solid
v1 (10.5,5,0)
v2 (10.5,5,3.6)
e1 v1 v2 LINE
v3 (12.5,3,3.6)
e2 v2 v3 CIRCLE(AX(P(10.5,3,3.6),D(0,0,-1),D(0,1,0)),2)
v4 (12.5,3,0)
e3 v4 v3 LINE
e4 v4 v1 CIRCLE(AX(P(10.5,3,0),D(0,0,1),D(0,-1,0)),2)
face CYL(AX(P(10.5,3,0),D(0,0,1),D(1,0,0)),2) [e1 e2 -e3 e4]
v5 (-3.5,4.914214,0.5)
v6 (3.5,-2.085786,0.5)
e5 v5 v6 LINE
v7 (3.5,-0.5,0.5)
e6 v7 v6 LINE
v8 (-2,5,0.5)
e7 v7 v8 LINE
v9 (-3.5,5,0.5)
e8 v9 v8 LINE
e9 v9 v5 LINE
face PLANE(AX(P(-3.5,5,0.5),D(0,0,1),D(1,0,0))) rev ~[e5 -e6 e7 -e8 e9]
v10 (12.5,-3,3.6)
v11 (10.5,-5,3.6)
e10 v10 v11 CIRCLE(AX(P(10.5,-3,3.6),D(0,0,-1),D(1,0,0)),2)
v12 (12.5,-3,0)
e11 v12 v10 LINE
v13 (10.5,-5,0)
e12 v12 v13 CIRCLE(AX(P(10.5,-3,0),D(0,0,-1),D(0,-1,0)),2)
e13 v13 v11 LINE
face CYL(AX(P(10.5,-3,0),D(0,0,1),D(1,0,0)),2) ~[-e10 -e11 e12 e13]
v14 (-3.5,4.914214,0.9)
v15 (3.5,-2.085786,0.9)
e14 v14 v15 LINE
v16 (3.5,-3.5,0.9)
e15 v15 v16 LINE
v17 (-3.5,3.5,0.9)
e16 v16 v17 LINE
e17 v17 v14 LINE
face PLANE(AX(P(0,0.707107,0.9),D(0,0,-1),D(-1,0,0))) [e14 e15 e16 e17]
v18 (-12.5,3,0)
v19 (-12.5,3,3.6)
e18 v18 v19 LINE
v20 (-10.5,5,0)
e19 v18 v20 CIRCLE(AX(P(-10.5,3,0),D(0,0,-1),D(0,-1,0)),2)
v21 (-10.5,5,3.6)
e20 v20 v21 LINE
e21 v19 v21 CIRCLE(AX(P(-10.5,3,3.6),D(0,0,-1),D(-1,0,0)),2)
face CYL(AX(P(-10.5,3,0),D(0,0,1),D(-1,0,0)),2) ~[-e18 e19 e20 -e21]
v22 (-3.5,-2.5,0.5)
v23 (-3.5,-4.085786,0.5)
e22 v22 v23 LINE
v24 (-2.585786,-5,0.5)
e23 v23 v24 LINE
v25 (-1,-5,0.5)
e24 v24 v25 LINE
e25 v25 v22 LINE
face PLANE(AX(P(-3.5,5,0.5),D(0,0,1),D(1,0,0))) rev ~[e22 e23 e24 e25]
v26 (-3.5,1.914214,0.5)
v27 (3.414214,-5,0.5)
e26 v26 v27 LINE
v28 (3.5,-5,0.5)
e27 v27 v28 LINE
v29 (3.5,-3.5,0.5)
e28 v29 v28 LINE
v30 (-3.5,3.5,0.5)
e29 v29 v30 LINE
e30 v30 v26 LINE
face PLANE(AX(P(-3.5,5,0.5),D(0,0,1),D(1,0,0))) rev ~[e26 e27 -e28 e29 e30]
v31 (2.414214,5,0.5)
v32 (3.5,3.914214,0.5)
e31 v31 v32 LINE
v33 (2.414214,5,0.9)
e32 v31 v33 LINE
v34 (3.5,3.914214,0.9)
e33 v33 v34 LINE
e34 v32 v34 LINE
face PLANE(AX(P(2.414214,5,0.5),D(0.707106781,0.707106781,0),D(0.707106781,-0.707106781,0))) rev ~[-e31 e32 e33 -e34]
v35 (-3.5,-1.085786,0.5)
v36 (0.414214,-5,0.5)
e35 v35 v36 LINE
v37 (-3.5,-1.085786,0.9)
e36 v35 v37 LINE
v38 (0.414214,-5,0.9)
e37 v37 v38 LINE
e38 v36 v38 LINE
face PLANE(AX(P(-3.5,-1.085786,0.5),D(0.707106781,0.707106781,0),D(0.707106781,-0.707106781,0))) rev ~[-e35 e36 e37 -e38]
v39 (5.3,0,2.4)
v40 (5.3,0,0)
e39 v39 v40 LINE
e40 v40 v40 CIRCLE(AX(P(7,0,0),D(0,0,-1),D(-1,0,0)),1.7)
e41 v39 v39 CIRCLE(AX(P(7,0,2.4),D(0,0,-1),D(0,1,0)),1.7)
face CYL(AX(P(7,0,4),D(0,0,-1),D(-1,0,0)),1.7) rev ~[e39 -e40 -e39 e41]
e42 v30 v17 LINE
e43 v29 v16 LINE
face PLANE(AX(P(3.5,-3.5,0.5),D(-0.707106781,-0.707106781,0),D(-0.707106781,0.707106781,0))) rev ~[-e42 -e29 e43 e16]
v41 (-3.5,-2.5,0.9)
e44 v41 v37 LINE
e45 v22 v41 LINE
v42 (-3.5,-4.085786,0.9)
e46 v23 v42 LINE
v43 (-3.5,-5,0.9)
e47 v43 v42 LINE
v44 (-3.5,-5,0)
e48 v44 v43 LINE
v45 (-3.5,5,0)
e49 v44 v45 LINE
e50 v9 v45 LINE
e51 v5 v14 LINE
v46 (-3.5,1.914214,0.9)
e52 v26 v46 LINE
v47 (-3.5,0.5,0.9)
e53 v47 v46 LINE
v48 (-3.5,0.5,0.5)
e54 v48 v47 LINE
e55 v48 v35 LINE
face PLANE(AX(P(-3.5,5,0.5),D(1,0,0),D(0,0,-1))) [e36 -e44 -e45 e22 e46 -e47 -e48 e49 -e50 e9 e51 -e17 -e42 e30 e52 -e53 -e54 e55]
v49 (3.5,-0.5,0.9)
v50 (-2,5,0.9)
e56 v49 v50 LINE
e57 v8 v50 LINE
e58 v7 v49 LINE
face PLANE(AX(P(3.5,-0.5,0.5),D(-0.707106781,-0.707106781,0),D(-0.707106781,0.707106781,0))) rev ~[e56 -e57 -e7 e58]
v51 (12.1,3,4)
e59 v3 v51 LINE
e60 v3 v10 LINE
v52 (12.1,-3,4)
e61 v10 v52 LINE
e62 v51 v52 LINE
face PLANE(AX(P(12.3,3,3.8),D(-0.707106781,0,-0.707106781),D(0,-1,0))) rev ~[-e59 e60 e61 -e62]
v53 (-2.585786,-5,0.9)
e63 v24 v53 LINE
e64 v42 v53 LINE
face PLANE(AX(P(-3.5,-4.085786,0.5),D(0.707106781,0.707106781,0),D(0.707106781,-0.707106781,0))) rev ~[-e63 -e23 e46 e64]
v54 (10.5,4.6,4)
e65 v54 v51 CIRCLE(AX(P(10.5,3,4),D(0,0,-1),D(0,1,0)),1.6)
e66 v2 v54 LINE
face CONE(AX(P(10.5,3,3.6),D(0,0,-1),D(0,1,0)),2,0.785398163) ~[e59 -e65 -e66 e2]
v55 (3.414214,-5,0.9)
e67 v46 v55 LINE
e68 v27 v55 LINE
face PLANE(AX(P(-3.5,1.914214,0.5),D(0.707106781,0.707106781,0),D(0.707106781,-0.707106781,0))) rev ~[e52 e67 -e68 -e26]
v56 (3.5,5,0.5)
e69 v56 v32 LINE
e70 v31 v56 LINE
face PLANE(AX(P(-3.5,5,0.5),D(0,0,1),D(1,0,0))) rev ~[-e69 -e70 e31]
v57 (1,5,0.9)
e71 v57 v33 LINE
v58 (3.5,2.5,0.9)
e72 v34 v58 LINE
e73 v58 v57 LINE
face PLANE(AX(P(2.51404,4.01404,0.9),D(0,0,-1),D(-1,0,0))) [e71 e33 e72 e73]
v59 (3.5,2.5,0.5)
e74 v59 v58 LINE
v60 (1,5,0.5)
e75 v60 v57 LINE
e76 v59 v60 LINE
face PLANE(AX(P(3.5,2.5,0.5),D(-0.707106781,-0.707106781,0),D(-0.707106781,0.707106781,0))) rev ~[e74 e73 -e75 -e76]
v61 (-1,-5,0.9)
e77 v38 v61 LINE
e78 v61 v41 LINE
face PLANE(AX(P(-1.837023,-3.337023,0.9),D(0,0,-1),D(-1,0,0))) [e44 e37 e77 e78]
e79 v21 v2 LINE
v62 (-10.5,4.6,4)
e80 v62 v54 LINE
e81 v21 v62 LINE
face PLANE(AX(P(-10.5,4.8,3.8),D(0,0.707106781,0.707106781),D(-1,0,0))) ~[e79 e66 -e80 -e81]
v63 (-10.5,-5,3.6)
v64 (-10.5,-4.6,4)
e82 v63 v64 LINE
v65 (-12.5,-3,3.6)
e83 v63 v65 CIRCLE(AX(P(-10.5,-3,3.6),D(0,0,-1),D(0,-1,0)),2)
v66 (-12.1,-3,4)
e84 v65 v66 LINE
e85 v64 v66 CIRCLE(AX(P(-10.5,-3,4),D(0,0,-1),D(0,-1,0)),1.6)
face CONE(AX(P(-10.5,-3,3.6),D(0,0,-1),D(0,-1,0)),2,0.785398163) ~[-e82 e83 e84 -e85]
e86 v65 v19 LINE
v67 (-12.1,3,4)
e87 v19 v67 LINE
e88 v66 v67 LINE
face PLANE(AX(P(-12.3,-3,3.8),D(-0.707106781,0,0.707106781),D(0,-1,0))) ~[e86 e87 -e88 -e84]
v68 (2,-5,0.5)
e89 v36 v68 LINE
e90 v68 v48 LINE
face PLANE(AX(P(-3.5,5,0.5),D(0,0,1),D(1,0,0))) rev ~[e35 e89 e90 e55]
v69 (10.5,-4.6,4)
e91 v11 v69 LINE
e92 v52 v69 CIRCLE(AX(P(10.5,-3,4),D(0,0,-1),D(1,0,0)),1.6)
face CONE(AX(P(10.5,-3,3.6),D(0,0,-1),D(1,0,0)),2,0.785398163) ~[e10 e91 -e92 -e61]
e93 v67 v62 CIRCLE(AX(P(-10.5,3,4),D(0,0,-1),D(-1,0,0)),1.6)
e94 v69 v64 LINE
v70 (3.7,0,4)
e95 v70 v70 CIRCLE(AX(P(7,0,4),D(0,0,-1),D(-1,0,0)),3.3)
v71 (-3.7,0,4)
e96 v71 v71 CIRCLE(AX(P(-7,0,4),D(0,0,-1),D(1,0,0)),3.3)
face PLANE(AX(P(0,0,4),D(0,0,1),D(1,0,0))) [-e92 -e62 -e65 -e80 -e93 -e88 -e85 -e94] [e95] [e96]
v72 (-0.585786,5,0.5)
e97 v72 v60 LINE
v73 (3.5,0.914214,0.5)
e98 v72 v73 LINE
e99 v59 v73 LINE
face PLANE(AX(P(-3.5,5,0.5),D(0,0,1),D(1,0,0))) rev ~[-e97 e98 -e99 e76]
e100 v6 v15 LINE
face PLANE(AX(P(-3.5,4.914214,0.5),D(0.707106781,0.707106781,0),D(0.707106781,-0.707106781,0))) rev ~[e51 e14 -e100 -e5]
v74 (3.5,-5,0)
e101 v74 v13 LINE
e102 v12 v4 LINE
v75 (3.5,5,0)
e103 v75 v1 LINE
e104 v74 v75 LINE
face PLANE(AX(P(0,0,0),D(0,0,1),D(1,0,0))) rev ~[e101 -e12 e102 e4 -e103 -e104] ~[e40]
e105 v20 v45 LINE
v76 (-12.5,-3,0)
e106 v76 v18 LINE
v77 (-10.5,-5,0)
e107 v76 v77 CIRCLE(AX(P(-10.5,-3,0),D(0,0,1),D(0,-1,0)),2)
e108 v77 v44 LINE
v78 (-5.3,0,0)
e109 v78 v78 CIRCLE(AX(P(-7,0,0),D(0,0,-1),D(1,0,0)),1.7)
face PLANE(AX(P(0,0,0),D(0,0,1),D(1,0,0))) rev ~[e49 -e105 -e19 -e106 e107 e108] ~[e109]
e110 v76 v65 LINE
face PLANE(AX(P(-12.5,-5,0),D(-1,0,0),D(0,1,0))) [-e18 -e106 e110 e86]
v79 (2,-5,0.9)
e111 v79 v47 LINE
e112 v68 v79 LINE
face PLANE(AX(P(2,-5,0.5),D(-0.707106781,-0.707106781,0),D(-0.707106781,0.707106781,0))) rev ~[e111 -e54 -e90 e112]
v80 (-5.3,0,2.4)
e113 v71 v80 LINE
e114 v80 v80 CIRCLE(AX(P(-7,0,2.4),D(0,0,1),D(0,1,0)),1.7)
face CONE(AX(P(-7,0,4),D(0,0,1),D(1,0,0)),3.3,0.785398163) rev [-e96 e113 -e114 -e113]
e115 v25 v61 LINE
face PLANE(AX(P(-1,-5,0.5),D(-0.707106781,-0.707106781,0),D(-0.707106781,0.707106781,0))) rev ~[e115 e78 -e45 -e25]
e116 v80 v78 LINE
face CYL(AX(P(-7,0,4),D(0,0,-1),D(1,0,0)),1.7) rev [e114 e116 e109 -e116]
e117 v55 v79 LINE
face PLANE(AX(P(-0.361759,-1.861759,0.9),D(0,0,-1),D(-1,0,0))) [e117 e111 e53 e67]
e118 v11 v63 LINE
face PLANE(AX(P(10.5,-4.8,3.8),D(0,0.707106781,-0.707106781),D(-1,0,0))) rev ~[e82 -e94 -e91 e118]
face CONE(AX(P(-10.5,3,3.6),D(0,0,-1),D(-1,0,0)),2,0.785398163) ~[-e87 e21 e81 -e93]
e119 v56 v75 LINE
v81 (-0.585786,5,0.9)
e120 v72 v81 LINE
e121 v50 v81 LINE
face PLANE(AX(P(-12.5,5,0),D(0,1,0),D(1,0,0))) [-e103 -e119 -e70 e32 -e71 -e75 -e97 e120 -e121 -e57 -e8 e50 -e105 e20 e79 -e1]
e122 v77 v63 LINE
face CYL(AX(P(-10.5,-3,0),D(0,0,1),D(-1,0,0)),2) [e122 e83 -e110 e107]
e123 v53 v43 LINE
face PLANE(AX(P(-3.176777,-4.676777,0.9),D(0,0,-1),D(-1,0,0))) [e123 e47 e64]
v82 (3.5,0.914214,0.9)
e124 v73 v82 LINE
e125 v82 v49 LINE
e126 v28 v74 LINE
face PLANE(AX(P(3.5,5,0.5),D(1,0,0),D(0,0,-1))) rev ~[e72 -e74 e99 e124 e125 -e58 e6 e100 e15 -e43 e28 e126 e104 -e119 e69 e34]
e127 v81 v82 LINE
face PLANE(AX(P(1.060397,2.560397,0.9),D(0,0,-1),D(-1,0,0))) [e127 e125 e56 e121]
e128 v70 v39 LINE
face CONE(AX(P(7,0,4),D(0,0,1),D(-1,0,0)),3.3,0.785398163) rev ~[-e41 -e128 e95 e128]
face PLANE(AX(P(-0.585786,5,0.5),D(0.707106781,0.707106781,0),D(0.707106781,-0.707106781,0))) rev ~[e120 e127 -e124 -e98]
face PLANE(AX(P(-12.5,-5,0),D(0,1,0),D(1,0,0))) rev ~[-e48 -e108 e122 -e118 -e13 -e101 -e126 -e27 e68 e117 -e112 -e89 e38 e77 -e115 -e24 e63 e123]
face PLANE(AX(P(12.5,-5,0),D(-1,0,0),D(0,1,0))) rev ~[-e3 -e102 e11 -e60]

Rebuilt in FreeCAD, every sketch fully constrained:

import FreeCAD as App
import Part
import Sketcher

V = App.Vector


def edges_at(feature, points):
    """Names of the edges that pass closest to the given points."""
    edges = feature.Shape.Edges
    near = lambda p: min(range(len(edges)), key=lambda i: edges[i].distToShape(Part.Vertex(*p))[0])
    return sorted({f"Edge{near(p) + 1}" for p in points})

doc = App.newDocument("Part")
body = doc.addObject("PartDesign::Body", "Body")

# Sketch on XY plane
sketch1 = body.newObject("Sketcher::SketchObject", "Sketch")
sketch1.AttachmentSupport = (doc.getObject("XY_Plane"), [""])
sketch1.MapMode = "FlatFace"
sketch1.addGeometry([
    Part.LineSegment(V(-12, 5, 0), V(-12, -5, 0)),
    Part.LineSegment(V(-12, -5, 0), V(12, -5, 0)),
    Part.LineSegment(V(12, -5, 0), V(12, 5, 0)),
    Part.LineSegment(V(12, 5, 0), V(-12, 5, 0)),
], False)
sketch1.addConstraint([
    Sketcher.Constraint("Coincident", 0, 2, 1, 1),
    Sketcher.Constraint("Coincident", 1, 2, 2, 1),
    Sketcher.Constraint("Coincident", 2, 2, 3, 1),
    Sketcher.Constraint("Coincident", 3, 2, 0, 1),
    Sketcher.Constraint("Vertical", 0),
    Sketcher.Constraint("Horizontal", 1),
    Sketcher.Constraint("Vertical", 2),
    Sketcher.Constraint("Horizontal", 3),
    Sketcher.Constraint("Symmetric", 0, 2, 2, 2, -1, 1),
    Sketcher.Constraint("DistanceX", 1, 1, 1, 2, 25.0),
    Sketcher.Constraint("DistanceY", 0, 2, 0, 1, 10.0),
])
pad1 = body.newObject("PartDesign::Pad", "Pad")
pad1.Profile = sketch1
pad1.Length = 4

# Sketch on XZ plane
sketch2 = body.newObject("Sketcher::SketchObject", "Sketch001")
sketch2.AttachmentSupport = (doc.getObject("XZ_Plane"), [""])
sketch2.MapMode = "FlatFace"
sketch2.AttachmentOffset = App.Placement(V(0, 0, -5), App.Rotation())
sketch2.addGeometry([
    Part.LineSegment(V(-3.5, -0.5, 0), V(-3.5, 0.5, 0)),
    Part.LineSegment(V(-3.5, 0.5, 0), V(3.5, 0.5, 0)),
    Part.LineSegment(V(3.5, 0.5, 0), V(3.5, -0.5, 0)),
    Part.LineSegment(V(3.5, -0.5, 0), V(-3.5, -0.5, 0)),
], False)
sketch2.addConstraint([
    Sketcher.Constraint("Coincident", 0, 2, 1, 1),
    Sketcher.Constraint("Coincident", 1, 2, 2, 1),
    Sketcher.Constraint("Coincident", 2, 2, 3, 1),
    Sketcher.Constraint("Coincident", 3, 2, 0, 1),
    Sketcher.Constraint("Vertical", 0),
    Sketcher.Constraint("Horizontal", 1),
    Sketcher.Constraint("Vertical", 2),
    Sketcher.Constraint("Horizontal", 3),
    Sketcher.Constraint("Symmetric", 0, 2, 2, 2, -1, 1),
    Sketcher.Constraint("DistanceX", 1, 1, 1, 2, 7.0),
    Sketcher.Constraint("DistanceY", 0, 1, 0, 2, 1.0),
])
pocket1 = body.newObject("PartDesign::Pocket", "Pocket")
pocket1.Profile = sketch2
pocket1.Type = "ThroughAll"
pocket1.Reversed = True

# Sketch on XY plane
sketch3 = body.newObject("Sketcher::SketchObject", "Sketch002")
sketch3.AttachmentSupport = (doc.getObject("XY_Plane"), [""])
sketch3.MapMode = "FlatFace"
sketch3.AttachmentOffset = App.Placement(V(0, 0, 4), App.Rotation())
sketch3.addGeometry(Part.Circle(V(7, 0, 0), V(0, 0, 1), 1.7), False)
sketch3.addConstraint([
    Sketcher.Constraint("PointOnObject", 0, 3, -1),
    Sketcher.Constraint("Diameter", 0, 3.4),
    Sketcher.Constraint("DistanceX", -1, 1, 0, 3, 7.0),
])
doc.recompute()
hole = body.newObject("PartDesign::Hole", "Hole")
hole.Profile = sketch3
hole.ThreadType = "None"
hole.Diameter = 3.4
hole.DepthType = "ThroughAll"
hole.HoleCutType = "Countersink"
hole.HoleCutDiameter = 6.6
hole.HoleCutCountersinkAngle = 90
doc.recompute()

mirrored = body.newObject("PartDesign::Mirrored", "Mirrored")
mirrored.Originals = [hole]
mirrored.MirrorPlane = (doc.getObject("YZ_Plane"), [""])
body.Tip = mirrored
doc.recompute()

fillet = body.newObject("PartDesign::Fillet", "Fillet")
fillet.Base = (mirrored, edges_at(mirrored, [
    (12.5, -5, 2),
    (-12.5, -5, 2),
    (-12.5, 5, 2),
    (12.5, 5, 2),
]))
fillet.Radius = 2
doc.recompute()

chamfer = body.newObject("PartDesign::Chamfer", "Chamfer")
chamfer.Base = (fillet, edges_at(fillet, [
    (-12.5, 0, 4),
    (0, 5, 4),
    (12.5, 0, 4),
    (0, -5, 4),
    (11.914, 4.414, 4),
    (11.914, -4.414, 4),
    (-11.914, -4.414, 4),
    (-11.914, 4.414, 4),
]))
chamfer.Size = 0.4

# Sketch on XY plane
sketch4 = body.newObject("Sketcher::SketchObject", "Sketch003")
sketch4.AttachmentSupport = (doc.getObject("XY_Plane"), [""])
sketch4.MapMode = "FlatFace"
sketch4.AttachmentOffset = App.Placement(V(0, 0, 0.5), App.Rotation())
sketch4.addGeometry([
    Part.LineSegment(V(3.5, -2.1, 0), V(3.5, -3.5, 0)),  # 0
    Part.LineSegment(V(3.5, -3.5, 0), V(-3.5, 3.5, 0)),  # 1
    Part.LineSegment(V(-3.5, 3.5, 0), V(-3.5, 4.9, 0)),  # 2
    Part.LineSegment(V(-3.5, 4.9, 0), V(3.5, -2.1, 0)),  # 3
    Part.LineSegment(V(-3.5, 0.5, 0), V(-3.5, 1.9, 0)),  # 4
    Part.LineSegment(V(-3.5, 1.9, 0), V(3.4, -5, 0)),  # 5
    Part.LineSegment(V(3.4, -5, 0), V(2, -5, 0)),  # 6
    Part.LineSegment(V(2, -5, 0), V(-3.5, 0.5, 0)),  # 7
    Part.LineSegment(V(3.5, 0.9, 0), V(3.5, -0.5, 0)),  # 8
    Part.LineSegment(V(3.5, -0.5, 0), V(-2, 5, 0)),  # 9
    Part.LineSegment(V(-2, 5, 0), V(-0.6, 5, 0)),  # 10
    Part.LineSegment(V(-0.6, 5, 0), V(3.5, 0.9, 0)),  # 11
    Part.LineSegment(V(-3.5, -2.5, 0), V(-3.5, -1.1, 0)),  # 12
    Part.LineSegment(V(-3.5, -1.1, 0), V(0.4, -5, 0)),  # 13
    Part.LineSegment(V(0.4, -5, 0), V(-1, -5, 0)),  # 14
    Part.LineSegment(V(-1, -5, 0), V(-3.5, -2.5, 0)),  # 15
    Part.LineSegment(V(3.5, 3.9, 0), V(3.5, 2.5, 0)),  # 16
    Part.LineSegment(V(3.5, 2.5, 0), V(1, 5, 0)),  # 17
    Part.LineSegment(V(1, 5, 0), V(2.4, 5, 0)),  # 18
    Part.LineSegment(V(2.4, 5, 0), V(3.5, 3.9, 0)),  # 19
    Part.LineSegment(V(-3.5, -5, 0), V(-3.5, -4.1, 0)),  # 20
    Part.LineSegment(V(-3.5, -4.1, 0), V(-2.6, -5, 0)),  # 21
    Part.LineSegment(V(-2.6, -5, 0), V(-3.5, -5, 0)),  # 22
], False)
sketch4.addConstraint([
    Sketcher.Constraint("Coincident", 0, 2, 1, 1),
    Sketcher.Constraint("Coincident", 1, 2, 2, 1),
    Sketcher.Constraint("Coincident", 2, 2, 3, 1),
    Sketcher.Constraint("Coincident", 3, 2, 0, 1),
    Sketcher.Constraint("Coincident", 4, 2, 5, 1),
    Sketcher.Constraint("Coincident", 5, 2, 6, 1),
    Sketcher.Constraint("Coincident", 6, 2, 7, 1),
    Sketcher.Constraint("Coincident", 7, 2, 4, 1),
    Sketcher.Constraint("Coincident", 8, 2, 9, 1),
    Sketcher.Constraint("Coincident", 9, 2, 10, 1),
    Sketcher.Constraint("Coincident", 10, 2, 11, 1),
    Sketcher.Constraint("Coincident", 11, 2, 8, 1),
    Sketcher.Constraint("Coincident", 12, 2, 13, 1),
    Sketcher.Constraint("Coincident", 13, 2, 14, 1),
    Sketcher.Constraint("Coincident", 14, 2, 15, 1),
    Sketcher.Constraint("Coincident", 15, 2, 12, 1),
    Sketcher.Constraint("Coincident", 16, 2, 17, 1),
    Sketcher.Constraint("Coincident", 17, 2, 18, 1),
    Sketcher.Constraint("Coincident", 18, 2, 19, 1),
    Sketcher.Constraint("Coincident", 19, 2, 16, 1),
    Sketcher.Constraint("Coincident", 20, 2, 21, 1),
    Sketcher.Constraint("Coincident", 21, 2, 22, 1),
    Sketcher.Constraint("Coincident", 22, 2, 20, 1),
    Sketcher.Constraint("Vertical", 0),
    Sketcher.Constraint("Vertical", 2),
    Sketcher.Constraint("Vertical", 4),
    Sketcher.Constraint("Horizontal", 6),
    Sketcher.Constraint("Vertical", 8),
    Sketcher.Constraint("Horizontal", 10),
    Sketcher.Constraint("Vertical", 12),
    Sketcher.Constraint("Horizontal", 14),
    Sketcher.Constraint("Vertical", 16),
    Sketcher.Constraint("Horizontal", 18),
    Sketcher.Constraint("Vertical", 20),
    Sketcher.Constraint("Horizontal", 22),
    Sketcher.Constraint("Symmetric", 0, 2, 1, 2, -1, 1),
    Sketcher.Constraint("Symmetric", 7, 2, 8, 2, -1, 1),
    Sketcher.Constraint("Symmetric", 6, 2, 9, 2, -1, 1),
    Sketcher.Constraint("Symmetric", 15, 2, 16, 2, -1, 1),
    Sketcher.Constraint("Symmetric", 14, 2, 17, 2, -1, 1),
    Sketcher.Constraint("Parallel", 1, 3),
    Sketcher.Constraint("Parallel", 3, 5),
    Sketcher.Constraint("Parallel", 5, 7),
    Sketcher.Constraint("Parallel", 9, 11),
    Sketcher.Constraint("Parallel", 11, 13),
    Sketcher.Constraint("Parallel", 13, 15),
    Sketcher.Constraint("Parallel", 17, 19),
    Sketcher.Constraint("Parallel", 19, 21),
    Sketcher.Constraint("Horizontal", 6, 2, 13, 2),
    Sketcher.Constraint("Horizontal", 14, 2, 21, 2),
    Sketcher.Constraint("Vertical", 2, 2, 4, 2),
    Sketcher.Constraint("Vertical", 7, 2, 12, 2),
    Sketcher.Constraint("Vertical", 15, 2, 20, 2),
    Sketcher.Constraint("Equal", 6, 10),
    Sketcher.Constraint("Equal", 10, 14),
    Sketcher.Constraint("Equal", 14, 18),
    Sketcher.Constraint("Equal", 18, 0),
    Sketcher.Constraint("Equal", 2, 4),
    Sketcher.Constraint("DistanceY", 5, 2, -1, 1, 5.0),
    Sketcher.Constraint("DistanceX", -1, 1, 6, 2, 2.0),
    Sketcher.Constraint("DistanceX", 14, 2, -1, 1, 1.0),
    Sketcher.Constraint("DistanceX", 1, 2, 0, 2, 7.0),
    Sketcher.Constraint("DistanceY", 20, 2, 12, 2, 3.0),
    Sketcher.Constraint("DistanceX", 6, 2, 6, 1, 1.414214),
])
pocket2 = body.newObject("PartDesign::Pocket", "Pocket001")
pocket2.Profile = sketch4
pocket2.Length = 0.4
pocket2.Reversed = True

doc.recompute()
